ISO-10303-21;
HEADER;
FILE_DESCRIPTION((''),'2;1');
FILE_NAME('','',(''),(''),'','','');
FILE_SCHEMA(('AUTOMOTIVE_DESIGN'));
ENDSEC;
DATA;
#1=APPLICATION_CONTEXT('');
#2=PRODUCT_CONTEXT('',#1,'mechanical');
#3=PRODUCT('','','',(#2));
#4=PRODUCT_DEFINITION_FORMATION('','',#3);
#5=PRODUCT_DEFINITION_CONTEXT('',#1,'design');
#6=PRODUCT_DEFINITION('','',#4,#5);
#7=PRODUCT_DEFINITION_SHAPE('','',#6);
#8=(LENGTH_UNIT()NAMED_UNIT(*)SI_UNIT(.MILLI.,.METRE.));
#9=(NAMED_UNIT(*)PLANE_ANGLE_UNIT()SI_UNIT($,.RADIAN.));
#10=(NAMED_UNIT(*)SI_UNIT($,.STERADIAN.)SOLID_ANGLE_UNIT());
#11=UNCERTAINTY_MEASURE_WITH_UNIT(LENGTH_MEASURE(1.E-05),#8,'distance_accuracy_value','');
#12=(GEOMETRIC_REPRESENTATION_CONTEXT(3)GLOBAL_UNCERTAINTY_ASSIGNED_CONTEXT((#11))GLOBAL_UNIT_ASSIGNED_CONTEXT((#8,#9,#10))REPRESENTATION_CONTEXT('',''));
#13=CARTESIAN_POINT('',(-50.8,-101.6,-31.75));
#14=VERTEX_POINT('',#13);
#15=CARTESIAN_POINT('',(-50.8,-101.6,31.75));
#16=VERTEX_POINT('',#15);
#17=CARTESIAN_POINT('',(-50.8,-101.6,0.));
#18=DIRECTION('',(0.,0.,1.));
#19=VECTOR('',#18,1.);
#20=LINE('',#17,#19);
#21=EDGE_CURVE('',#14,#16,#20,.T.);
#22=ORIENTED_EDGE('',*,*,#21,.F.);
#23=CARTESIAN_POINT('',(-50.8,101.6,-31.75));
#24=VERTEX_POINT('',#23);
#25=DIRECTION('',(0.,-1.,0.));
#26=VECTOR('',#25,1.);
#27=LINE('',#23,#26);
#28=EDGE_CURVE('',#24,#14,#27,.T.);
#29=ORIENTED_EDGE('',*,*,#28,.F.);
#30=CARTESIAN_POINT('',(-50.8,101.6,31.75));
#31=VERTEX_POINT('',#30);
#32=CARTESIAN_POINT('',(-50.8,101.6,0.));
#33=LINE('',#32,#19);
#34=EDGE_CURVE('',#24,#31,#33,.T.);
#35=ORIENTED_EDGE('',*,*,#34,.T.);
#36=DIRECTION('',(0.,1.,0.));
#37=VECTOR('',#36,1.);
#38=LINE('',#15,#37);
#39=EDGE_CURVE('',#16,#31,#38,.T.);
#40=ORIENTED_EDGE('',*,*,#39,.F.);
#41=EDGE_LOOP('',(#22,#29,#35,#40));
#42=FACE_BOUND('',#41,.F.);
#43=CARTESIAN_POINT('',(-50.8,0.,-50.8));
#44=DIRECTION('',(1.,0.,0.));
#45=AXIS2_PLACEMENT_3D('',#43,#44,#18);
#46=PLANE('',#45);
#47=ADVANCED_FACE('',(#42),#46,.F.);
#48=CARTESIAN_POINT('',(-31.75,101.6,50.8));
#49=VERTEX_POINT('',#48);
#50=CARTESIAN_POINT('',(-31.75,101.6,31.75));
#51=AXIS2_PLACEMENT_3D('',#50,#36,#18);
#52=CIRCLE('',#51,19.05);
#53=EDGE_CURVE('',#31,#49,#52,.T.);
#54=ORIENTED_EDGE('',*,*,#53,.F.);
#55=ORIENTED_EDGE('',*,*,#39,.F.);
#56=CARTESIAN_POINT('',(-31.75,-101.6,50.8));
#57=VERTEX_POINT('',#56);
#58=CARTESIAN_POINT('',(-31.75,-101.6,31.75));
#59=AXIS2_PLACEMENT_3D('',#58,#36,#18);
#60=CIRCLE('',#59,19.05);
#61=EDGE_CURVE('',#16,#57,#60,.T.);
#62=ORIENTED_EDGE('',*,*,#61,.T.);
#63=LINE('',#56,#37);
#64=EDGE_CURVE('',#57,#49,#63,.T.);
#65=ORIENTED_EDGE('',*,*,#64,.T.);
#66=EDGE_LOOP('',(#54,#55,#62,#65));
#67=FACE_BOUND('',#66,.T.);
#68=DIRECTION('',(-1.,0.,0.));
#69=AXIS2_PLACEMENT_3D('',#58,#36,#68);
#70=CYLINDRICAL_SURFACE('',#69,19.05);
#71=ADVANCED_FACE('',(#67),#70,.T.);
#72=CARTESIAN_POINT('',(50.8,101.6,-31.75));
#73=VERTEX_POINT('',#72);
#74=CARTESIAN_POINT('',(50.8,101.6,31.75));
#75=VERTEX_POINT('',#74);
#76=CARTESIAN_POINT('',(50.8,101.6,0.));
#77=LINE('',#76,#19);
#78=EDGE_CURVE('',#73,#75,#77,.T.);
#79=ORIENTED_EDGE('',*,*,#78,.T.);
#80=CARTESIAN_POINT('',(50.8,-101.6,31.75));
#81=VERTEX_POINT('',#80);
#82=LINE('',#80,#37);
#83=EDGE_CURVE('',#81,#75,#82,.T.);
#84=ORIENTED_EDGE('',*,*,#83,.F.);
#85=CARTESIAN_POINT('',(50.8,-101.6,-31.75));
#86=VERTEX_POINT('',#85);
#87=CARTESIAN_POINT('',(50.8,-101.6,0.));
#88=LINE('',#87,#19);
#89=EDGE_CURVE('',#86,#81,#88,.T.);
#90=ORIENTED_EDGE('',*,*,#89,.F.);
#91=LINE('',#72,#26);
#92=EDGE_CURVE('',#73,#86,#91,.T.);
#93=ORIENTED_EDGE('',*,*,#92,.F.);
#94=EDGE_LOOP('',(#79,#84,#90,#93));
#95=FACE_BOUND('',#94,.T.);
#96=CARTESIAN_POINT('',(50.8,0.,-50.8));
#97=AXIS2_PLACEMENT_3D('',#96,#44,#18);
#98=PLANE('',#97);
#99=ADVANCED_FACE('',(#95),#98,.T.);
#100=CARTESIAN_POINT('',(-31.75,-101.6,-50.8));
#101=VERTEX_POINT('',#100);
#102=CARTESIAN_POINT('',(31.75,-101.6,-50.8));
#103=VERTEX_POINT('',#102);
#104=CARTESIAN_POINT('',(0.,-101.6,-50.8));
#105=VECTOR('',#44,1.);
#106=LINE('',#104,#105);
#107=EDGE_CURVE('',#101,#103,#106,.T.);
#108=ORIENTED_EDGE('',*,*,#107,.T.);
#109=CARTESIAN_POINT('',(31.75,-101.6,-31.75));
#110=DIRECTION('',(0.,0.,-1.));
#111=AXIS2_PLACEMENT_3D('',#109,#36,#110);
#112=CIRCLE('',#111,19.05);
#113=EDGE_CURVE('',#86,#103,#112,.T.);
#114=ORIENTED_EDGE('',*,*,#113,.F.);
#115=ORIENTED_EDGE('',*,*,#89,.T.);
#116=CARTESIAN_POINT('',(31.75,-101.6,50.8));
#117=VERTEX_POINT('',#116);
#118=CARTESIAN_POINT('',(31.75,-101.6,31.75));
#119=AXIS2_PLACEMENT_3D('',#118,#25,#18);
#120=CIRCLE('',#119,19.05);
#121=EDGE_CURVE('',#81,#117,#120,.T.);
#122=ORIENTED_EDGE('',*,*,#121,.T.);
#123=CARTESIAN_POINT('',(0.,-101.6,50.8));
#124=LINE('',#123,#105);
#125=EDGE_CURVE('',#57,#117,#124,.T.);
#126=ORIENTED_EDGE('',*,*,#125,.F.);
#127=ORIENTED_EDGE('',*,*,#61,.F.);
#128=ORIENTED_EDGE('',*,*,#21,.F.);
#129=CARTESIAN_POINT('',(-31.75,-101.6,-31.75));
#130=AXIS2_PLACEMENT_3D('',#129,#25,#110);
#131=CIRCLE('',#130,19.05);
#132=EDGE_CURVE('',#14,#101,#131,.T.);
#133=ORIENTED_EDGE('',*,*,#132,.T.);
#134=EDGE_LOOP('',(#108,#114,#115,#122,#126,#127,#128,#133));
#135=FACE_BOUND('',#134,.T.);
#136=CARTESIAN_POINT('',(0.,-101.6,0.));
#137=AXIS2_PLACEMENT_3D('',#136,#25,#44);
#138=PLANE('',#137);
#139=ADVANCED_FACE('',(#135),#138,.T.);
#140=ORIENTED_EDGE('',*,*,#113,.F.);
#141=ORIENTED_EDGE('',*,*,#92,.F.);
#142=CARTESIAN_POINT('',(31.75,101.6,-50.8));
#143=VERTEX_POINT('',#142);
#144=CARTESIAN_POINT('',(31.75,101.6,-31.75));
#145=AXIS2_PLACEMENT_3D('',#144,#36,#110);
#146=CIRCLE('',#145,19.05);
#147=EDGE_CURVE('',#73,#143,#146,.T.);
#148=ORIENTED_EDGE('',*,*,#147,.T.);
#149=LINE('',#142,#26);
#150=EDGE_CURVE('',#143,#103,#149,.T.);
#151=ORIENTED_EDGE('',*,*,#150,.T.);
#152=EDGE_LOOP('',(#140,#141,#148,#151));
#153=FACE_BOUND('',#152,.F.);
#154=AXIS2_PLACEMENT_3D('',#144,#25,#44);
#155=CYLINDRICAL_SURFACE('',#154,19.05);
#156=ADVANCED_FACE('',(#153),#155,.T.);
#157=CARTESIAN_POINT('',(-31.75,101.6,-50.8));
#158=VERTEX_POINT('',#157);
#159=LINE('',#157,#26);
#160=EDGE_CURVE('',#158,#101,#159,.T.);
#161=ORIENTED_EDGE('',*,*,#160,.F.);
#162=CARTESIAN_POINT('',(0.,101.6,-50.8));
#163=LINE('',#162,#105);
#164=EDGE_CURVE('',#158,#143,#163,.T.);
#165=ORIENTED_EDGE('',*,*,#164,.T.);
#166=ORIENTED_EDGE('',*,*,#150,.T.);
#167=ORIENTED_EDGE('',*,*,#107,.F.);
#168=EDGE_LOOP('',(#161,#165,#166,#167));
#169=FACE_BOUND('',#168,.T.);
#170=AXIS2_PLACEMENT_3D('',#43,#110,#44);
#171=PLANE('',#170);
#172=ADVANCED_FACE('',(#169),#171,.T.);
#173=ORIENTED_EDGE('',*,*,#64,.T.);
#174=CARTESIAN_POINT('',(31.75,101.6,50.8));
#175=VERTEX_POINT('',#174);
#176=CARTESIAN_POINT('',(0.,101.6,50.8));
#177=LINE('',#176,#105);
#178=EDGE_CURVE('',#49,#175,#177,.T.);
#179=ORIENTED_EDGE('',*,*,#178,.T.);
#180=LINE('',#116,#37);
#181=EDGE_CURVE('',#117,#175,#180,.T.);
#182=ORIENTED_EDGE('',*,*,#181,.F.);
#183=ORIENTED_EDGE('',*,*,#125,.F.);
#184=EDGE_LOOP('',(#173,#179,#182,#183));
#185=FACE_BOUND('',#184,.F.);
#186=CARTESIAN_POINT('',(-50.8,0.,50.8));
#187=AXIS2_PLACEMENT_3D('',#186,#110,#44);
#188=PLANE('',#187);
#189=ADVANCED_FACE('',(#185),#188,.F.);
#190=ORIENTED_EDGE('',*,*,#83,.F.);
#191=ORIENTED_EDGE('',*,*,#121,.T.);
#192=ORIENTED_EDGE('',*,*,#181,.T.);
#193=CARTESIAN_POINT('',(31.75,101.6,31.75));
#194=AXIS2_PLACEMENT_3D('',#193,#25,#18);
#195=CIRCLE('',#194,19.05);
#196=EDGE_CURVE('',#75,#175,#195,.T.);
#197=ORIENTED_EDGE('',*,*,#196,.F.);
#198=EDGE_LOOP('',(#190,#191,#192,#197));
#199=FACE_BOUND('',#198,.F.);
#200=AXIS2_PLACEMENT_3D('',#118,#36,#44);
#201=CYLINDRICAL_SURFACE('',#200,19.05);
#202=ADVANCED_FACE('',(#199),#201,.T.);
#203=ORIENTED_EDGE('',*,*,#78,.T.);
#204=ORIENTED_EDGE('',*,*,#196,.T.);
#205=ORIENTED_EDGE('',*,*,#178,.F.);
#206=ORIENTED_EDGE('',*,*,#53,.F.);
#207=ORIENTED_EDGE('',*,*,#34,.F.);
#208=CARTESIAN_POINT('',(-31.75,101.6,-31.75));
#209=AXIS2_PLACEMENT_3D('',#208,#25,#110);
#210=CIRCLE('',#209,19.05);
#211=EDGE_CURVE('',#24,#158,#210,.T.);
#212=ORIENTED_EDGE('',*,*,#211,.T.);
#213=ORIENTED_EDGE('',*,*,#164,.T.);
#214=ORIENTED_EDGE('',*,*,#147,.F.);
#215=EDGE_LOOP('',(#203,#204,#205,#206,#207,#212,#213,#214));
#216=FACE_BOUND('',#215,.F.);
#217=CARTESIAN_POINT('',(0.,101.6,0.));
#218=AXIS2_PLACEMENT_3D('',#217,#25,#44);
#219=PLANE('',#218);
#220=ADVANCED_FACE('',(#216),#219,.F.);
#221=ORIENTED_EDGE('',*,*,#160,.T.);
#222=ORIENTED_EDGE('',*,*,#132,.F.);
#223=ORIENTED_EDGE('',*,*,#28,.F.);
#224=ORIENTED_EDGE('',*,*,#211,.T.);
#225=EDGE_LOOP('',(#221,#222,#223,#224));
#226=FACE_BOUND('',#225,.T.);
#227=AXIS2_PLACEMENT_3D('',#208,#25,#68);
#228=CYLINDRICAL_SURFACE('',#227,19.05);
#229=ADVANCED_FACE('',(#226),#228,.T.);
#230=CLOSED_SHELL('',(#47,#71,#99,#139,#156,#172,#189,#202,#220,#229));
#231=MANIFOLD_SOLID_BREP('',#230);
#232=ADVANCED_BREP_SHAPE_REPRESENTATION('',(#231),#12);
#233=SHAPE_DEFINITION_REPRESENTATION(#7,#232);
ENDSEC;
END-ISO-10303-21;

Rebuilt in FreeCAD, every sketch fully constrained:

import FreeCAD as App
import Part
import Sketcher

V = App.Vector
Q = App.Units.Quantity


def edges_at(feature, points):
    """Names of the edges that pass closest to the given points."""
    edges = feature.Shape.Edges
    near = lambda p: min(range(len(edges)), key=lambda i: edges[i].distToShape(Part.Vertex(*p))[0])
    return sorted({f"Edge{near(p) + 1}" for p in points})


def add_polygon(sketch, points):
    """Adds a closed chain of lines whose ends are joined by coincident constraints."""
    first, n = sketch.GeometryCount, len(points)
    for a, b in zip(points, points[1:] + points[:1]):
        sketch.addGeometry(Part.LineSegment(App.Vector(*a, 0), App.Vector(*b, 0)), False)
    for i in range(n):
        sketch.addConstraint(Sketcher.Constraint("Coincident", first + i, 2, first + (i + 1) % n, 1))

doc = App.newDocument("Part")
body = doc.addObject("PartDesign::Body", "Body")

# Sketch on XZ plane
sketch1 = doc.addObject("Sketcher::SketchObject", "Sketch")
body.addObject(sketch1)
sketch1.AttachmentSupport = (doc.XZ_Plane, [""])
sketch1.MapMode = "FlatFace"
add_polygon(sketch1, [(-51, 51), (-51, -51), (51, -51), (51, 51)])  # lines 0-3
sketch1.addConstraint(Sketcher.Constraint("Vertical", 0))
sketch1.addConstraint(Sketcher.Constraint("Horizontal", 1))
sketch1.addConstraint(Sketcher.Constraint("Vertical", 2))
sketch1.addConstraint(Sketcher.Constraint("Horizontal", 3))
sketch1.addConstraint(Sketcher.Constraint("Symmetric", 0, 2, 2, 2, -1, 1))
sketch1.addConstraint(Sketcher.Constraint("Equal", 3, 0))
sketch1.addConstraint(Sketcher.Constraint("DistanceX", 1, 1, 1, 2, Q("4 in")))
pad1 = doc.addObject("PartDesign::Pad", "Pad")
body.addObject(pad1)
pad1.Profile = sketch1
pad1.Type = "TwoLengths"
pad1.Length = Q("4 in")
pad1.Length2 = Q("4 in")
doc.recompute()

fillet = doc.addObject("PartDesign::Fillet", "Fillet")
body.addObject(fillet)
fillet.Base = (pad1, edges_at(pad1, [
    (-50.8, 0, 50.8),
    (50.8, 0, 50.8),
    (50.8, 0, -50.8),
    (-50.8, 0, -50.8),
]))
fillet.Radius = Q("0.75 in")

# Sketch on XY plane
sketch2 = doc.addObject("Sketcher::SketchObject", "Sketch001")
body.addObject(sketch2)
sketch2.AttachmentSupport = (doc.XY_Plane, [""])
sketch2.MapMode = "FlatFace"
sketch2.AttachmentOffset = App.Placement(V(0, 0, -2 * 25.4), App.Rotation())
sketch2.addGeometry(Part.Circle(V(-22.5, -95.3, 0), V(0, 0, 1), 2.7), False)
sketch2.addConstraint(Sketcher.Constraint("Diameter", 0, 5.477458))
sketch2.addConstraint(Sketcher.Constraint("DistanceY", 0, 3, -1, 1, 95.329402))
sketch2.addConstraint(Sketcher.Constraint("DistanceX", 0, 3, -1, 1, 22.506165))
pad2 = doc.addObject("PartDesign::Pad", "Pad001")
body.addObject(pad2)
pad2.Profile = sketch2
pad2.Length = Q("0.76 in")

doc.recompute()
